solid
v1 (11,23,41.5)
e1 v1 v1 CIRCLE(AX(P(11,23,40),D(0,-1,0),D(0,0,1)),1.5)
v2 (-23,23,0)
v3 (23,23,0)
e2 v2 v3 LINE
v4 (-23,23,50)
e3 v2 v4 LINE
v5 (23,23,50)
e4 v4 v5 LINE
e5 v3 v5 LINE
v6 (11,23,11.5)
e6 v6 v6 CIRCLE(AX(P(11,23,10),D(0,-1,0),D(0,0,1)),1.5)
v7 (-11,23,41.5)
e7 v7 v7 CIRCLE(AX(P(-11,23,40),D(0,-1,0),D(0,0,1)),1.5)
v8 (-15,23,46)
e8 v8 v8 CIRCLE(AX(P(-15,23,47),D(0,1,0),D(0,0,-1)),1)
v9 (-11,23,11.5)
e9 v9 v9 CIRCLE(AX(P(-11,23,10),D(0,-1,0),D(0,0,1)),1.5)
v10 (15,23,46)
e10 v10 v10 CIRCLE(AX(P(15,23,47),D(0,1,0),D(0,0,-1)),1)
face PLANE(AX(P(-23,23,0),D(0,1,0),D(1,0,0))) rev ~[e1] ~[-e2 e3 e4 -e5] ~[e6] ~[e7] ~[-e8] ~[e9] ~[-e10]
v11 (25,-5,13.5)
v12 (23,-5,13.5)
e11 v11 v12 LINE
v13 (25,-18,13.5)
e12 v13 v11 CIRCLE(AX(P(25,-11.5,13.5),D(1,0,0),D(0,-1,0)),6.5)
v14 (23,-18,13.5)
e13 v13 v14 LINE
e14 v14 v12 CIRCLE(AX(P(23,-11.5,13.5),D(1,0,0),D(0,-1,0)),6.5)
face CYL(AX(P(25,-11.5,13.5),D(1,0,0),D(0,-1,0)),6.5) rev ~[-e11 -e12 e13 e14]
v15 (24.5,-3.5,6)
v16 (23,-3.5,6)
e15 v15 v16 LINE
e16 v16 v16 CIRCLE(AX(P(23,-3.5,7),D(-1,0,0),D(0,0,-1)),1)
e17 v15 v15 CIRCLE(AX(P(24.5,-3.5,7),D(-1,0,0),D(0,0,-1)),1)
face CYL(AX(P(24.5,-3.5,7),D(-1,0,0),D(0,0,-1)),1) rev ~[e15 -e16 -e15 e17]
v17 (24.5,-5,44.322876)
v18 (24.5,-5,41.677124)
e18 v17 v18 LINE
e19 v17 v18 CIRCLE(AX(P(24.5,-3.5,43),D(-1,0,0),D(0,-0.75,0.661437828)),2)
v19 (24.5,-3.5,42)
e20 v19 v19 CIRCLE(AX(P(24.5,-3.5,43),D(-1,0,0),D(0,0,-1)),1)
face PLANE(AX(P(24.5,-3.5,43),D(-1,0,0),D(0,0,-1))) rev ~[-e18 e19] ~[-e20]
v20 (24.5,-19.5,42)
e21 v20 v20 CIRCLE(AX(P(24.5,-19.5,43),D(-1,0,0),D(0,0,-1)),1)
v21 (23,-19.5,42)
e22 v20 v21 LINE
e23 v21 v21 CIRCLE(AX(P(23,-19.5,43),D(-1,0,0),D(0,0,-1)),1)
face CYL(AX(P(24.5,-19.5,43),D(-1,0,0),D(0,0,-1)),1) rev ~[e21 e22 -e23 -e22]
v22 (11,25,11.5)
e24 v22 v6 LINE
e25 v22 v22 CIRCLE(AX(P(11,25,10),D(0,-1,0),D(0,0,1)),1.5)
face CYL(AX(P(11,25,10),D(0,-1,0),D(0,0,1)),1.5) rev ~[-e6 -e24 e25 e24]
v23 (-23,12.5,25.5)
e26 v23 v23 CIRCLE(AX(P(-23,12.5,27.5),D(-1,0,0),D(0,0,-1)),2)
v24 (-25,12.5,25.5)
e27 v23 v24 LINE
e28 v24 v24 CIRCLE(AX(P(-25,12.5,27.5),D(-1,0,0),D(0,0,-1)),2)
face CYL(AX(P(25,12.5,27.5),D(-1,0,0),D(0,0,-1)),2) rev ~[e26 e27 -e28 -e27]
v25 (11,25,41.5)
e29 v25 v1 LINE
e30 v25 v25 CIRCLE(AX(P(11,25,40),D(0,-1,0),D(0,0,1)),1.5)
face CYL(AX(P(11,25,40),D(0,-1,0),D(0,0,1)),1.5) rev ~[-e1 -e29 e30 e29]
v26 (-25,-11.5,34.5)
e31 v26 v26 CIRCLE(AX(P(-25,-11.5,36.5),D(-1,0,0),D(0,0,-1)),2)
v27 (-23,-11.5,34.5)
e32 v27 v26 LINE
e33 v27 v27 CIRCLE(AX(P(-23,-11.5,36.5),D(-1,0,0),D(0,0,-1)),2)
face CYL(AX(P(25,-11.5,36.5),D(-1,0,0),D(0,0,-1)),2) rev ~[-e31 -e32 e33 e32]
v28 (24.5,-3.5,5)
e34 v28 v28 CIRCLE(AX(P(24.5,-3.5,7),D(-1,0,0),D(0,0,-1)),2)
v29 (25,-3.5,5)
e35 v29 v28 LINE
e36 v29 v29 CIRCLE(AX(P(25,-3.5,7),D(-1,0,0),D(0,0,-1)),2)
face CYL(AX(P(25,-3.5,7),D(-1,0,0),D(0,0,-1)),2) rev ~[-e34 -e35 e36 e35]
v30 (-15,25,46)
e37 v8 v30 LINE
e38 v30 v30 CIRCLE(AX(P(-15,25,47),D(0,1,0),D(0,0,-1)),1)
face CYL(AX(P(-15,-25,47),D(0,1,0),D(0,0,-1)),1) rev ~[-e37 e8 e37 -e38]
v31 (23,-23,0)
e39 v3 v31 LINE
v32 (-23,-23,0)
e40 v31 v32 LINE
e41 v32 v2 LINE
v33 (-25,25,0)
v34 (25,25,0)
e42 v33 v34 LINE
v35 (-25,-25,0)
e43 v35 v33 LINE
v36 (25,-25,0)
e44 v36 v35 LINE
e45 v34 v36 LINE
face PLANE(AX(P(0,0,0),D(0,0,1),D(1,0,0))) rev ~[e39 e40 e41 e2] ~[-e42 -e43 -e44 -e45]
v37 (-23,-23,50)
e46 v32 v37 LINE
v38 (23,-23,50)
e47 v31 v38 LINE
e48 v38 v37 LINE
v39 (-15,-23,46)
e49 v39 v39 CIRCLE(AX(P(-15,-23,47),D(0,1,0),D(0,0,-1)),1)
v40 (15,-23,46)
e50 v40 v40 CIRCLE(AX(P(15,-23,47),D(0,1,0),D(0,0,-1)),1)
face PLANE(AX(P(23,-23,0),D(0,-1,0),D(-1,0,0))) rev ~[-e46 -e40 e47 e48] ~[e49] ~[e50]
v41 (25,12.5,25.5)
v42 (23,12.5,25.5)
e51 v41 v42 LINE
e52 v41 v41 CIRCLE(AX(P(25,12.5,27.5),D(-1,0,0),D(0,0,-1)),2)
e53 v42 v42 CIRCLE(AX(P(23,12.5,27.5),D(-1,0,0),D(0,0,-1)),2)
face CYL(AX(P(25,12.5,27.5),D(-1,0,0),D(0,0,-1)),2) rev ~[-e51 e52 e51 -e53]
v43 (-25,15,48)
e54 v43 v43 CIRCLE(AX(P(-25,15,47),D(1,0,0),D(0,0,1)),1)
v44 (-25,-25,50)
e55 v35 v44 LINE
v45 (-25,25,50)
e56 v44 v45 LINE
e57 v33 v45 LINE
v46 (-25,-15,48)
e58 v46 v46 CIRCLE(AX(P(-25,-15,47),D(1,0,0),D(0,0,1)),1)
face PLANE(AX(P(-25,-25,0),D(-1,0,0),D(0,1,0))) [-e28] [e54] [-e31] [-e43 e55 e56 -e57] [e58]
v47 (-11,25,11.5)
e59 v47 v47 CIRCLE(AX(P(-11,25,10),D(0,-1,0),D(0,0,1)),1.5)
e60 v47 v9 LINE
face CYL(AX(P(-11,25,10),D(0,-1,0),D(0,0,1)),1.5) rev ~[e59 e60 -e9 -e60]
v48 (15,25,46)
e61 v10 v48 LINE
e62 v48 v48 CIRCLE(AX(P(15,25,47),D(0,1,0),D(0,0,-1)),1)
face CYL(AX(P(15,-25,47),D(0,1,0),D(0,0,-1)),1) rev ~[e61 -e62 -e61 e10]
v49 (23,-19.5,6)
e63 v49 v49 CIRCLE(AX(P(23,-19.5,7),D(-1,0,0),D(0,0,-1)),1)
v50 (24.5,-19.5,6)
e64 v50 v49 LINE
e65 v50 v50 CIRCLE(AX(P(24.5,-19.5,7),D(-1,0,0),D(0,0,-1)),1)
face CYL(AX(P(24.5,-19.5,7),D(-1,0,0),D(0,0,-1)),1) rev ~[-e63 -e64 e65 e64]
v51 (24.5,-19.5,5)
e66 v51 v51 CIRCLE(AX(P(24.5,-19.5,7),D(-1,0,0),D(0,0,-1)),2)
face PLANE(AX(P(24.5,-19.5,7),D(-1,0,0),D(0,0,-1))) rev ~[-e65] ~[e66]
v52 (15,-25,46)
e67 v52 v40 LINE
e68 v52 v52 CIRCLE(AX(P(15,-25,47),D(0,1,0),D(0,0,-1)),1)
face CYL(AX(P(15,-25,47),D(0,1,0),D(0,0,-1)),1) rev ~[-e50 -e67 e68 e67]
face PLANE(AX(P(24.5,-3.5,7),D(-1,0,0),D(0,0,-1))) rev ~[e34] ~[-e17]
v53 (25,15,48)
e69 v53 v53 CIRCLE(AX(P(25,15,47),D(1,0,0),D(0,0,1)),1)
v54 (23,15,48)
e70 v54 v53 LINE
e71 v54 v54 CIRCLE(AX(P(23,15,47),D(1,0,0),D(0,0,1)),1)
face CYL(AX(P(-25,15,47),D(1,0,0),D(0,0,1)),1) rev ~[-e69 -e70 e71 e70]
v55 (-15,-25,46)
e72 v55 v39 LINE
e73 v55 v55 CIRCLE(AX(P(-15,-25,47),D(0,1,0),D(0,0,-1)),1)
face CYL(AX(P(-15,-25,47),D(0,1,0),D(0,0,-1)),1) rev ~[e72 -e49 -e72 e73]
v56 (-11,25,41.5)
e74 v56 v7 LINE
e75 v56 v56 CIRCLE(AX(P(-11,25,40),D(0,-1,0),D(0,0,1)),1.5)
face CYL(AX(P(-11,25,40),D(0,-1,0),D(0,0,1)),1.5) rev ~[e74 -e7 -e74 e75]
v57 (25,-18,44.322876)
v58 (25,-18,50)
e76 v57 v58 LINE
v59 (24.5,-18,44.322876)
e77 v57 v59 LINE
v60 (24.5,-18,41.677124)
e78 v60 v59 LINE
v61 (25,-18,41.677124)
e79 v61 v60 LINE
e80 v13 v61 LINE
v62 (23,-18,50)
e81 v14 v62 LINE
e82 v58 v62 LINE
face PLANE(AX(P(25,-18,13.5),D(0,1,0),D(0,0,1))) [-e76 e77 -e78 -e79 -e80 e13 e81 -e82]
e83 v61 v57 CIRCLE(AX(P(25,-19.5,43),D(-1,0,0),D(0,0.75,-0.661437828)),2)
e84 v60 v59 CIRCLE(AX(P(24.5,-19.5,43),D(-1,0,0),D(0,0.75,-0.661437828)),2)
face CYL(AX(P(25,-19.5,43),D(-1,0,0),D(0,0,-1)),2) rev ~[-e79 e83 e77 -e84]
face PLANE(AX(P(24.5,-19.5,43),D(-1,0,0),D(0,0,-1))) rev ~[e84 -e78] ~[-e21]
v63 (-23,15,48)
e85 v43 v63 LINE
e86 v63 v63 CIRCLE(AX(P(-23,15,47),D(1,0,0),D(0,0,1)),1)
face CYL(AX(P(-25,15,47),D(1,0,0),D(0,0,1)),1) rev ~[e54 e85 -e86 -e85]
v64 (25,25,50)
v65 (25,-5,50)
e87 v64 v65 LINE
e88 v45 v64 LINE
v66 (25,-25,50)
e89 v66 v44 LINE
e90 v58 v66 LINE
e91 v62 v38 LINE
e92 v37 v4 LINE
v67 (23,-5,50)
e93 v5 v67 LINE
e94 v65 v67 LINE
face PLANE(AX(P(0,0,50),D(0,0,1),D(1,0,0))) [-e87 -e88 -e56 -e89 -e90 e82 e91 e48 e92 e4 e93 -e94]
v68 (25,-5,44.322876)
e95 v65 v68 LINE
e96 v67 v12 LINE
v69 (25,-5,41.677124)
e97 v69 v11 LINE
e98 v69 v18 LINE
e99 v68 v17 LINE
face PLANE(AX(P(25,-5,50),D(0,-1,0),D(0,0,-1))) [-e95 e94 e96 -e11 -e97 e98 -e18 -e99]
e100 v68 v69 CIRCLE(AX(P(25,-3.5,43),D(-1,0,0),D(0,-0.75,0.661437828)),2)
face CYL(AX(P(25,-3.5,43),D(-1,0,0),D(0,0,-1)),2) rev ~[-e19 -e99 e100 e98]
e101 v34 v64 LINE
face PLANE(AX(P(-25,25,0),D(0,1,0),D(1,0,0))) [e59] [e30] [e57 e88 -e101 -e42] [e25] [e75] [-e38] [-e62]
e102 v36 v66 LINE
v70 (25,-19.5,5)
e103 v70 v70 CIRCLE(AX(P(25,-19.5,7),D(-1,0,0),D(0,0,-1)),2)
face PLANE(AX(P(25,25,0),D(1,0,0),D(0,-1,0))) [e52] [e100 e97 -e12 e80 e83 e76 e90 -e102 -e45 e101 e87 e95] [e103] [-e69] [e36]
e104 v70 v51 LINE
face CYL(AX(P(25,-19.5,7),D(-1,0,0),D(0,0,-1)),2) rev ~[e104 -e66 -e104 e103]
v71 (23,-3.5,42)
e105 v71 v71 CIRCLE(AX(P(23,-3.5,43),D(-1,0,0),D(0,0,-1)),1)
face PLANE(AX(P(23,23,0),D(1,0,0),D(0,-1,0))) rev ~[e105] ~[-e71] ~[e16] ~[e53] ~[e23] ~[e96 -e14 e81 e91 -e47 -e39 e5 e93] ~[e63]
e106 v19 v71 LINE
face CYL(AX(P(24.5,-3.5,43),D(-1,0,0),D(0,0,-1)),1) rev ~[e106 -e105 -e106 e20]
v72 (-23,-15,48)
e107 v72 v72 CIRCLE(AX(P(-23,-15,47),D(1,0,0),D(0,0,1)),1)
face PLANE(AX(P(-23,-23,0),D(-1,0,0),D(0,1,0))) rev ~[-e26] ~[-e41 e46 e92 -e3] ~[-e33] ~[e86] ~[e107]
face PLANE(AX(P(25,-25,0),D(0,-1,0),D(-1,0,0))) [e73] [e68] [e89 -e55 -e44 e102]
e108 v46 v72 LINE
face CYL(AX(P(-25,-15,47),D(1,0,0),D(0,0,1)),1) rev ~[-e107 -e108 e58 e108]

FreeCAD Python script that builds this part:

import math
import FreeCAD as App
import Part
import Sketcher


def add_polygon(sketch, points):
    """Adds a closed chain of lines whose ends are joined by coincident constraints."""
    first, n = sketch.GeometryCount, len(points)
    for a, b in zip(points, points[1:] + points[:1]):
        sketch.addGeometry(Part.LineSegment(App.Vector(*a, 0), App.Vector(*b, 0)), False)
    for i in range(n):
        sketch.addConstraint(Sketcher.Constraint("Coincident", first + i, 2, first + (i + 1) % n, 1))

doc = App.newDocument("Part")
body = doc.addObject("PartDesign::Body", "Body")

# Sketch on XY plane
sketch1 = body.newObject("Sketcher::SketchObject", "Sketch")
sketch1.AttachmentSupport = (doc.getObject("XY_Plane"), [""])
sketch1.MapMode = "FlatFace"
add_polygon(sketch1, [(25, 25), (-25, 25), (-25, -25), (25, -25)])  # lines 0-3
add_polygon(sketch1, [(-23, -23), (-23, 23), (23, 23), (23, -23)])  # lines 4-7
sketch1.addConstraint([
    Sketcher.Constraint("Horizontal", 0),
    Sketcher.Constraint("Vertical", 1),
    Sketcher.Constraint("Horizontal", 2),
    Sketcher.Constraint("Vertical", 3),
    Sketcher.Constraint("Vertical", 4),
    Sketcher.Constraint("Horizontal", 5),
    Sketcher.Constraint("Vertical", 6),
    Sketcher.Constraint("Horizontal", 7),
    Sketcher.Constraint("Symmetric", 0, 2, 2, 2, -1, 1),
    Sketcher.Constraint("Symmetric", 4, 2, 6, 2, -1, 1),
    Sketcher.Constraint("Equal", 2, 1),
    Sketcher.Constraint("Equal", 7, 4),
    Sketcher.Constraint("DistanceX", 0, 2, 0, 1, 50.0),
    Sketcher.Constraint("DistanceX", 5, 1, 5, 2, 46.0),
])
pad1 = body.newObject("PartDesign::Pad", "Pad")
pad1.Profile = sketch1
pad1.Length = 50

# Sketch on YZ plane
sketch2 = body.newObject("Sketcher::SketchObject", "Sketch001")
sketch2.AttachmentSupport = (doc.getObject("YZ_Plane"), [""])
sketch2.MapMode = "FlatFace"
sketch2.AttachmentOffset = App.Placement(App.Vector(0, 0, 25), App.Rotation())
sketch2.addGeometry([
    Part.LineSegment(App.Vector(-5, 14, 0), App.Vector(-5, 50, 0)),
    Part.LineSegment(App.Vector(-5, 50, 0), App.Vector(-18, 50, 0)),
    Part.LineSegment(App.Vector(-18, 50, 0), App.Vector(-18, 14, 0)),
    Part.ArcOfCircle(Part.Circle(App.Vector(-12, 14, 0), App.Vector(0, 0, 1), 6), math.radians(180), math.radians(360)),
], False)
sketch2.addConstraint([
    Sketcher.Constraint("Coincident", 0, 2, 1, 1),
    Sketcher.Constraint("Coincident", 1, 2, 2, 1),
    Sketcher.Constraint("Tangent", 2, 2, 3, 1),
    Sketcher.Constraint("Tangent", 3, 2, 0, 1),
    Sketcher.Constraint("Vertical", 0),
    Sketcher.Constraint("Horizontal", 1),
    Sketcher.Constraint("Vertical", 2),
    Sketcher.Constraint("Radius", 3, 6.5),
    Sketcher.Constraint("DistanceY", 0, 1, 0, 2, 36.5),
    Sketcher.Constraint("DistanceX", 0, 2, -1, 1, 5.0),
    Sketcher.Constraint("DistanceY", -1, 1, 0, 2, 50.0),
])
pocket1 = body.newObject("PartDesign::Pocket", "Pocket")
pocket1.Profile = sketch2
pocket1.Length = 30.5

# Sketch on YZ plane
sketch3 = body.newObject("Sketcher::SketchObject", "Sketch002")
sketch3.AttachmentSupport = (doc.getObject("YZ_Plane"), [""])
sketch3.MapMode = "FlatFace"
sketch3.AttachmentOffset = App.Placement(App.Vector(0, 0, 25), App.Rotation())
sketch3.addGeometry([
    Part.Circle(App.Vector(-19.5, 43, 0), App.Vector(0, 0, 1), 1),
    Part.Circle(App.Vector(-3.5, 7, 0), App.Vector(0, 0, 1), 1),
    Part.Circle(App.Vector(-19.5, 7, 0), App.Vector(0, 0, 1), 1),
    Part.Circle(App.Vector(-3.5, 43, 0), App.Vector(0, 0, 1), 1),
], False)
sketch3.addConstraint([
    Sketcher.Constraint("Equal", 0, 1),
    Sketcher.Constraint("Equal", 1, 2),
    Sketcher.Constraint("Equal", 2, 3),
    Sketcher.Constraint("Horizontal", 1, 3, 2, 3),
    Sketcher.Constraint("Horizontal", 0, 3, 3, 3),
    Sketcher.Constraint("Vertical", 0, 3, 2, 3),
    Sketcher.Constraint("Vertical", 1, 3, 3, 3),
    Sketcher.Constraint("Diameter", 0, 2.0),
    Sketcher.Constraint("DistanceY", -1, 1, 0, 3, 43.0),
    Sketcher.Constraint("DistanceY", -1, 1, 1, 3, 7.0),
    Sketcher.Constraint("DistanceX", 0, 3, 1, 3, 16.0),
    Sketcher.Constraint("DistanceX", 0, 3, -1, 1, 19.5),
])
doc.recompute()
hole = body.newObject("PartDesign::Hole", "Hole")
hole.Profile = sketch3
hole.ThreadType = "None"
hole.Diameter = 2
hole.DepthType = "Dimension"
hole.Depth = 2
hole.DrillPoint = "Angled"
hole.DrillPointAngle = 118
hole.HoleCutType = "Counterbore"
hole.HoleCutDiameter = 4
hole.HoleCutDepth = 0.5

# Sketch on YZ plane
sketch4 = body.newObject("Sketcher::SketchObject", "Sketch003")
sketch4.AttachmentSupport = (doc.getObject("YZ_Plane"), [""])
sketch4.MapMode = "FlatFace"
sketch4.AttachmentOffset = App.Placement(App.Vector(0, 0, 25), App.Rotation())
sketch4.addGeometry([
    Part.Circle(App.Vector(-11.5, 36.5, 0), App.Vector(0, 0, 1), 2),
    Part.Circle(App.Vector(12.5, 27.5, 0), App.Vector(0, 0, 1), 2),
], False)
sketch4.addConstraint([
    Sketcher.Constraint("Equal", 0, 1),
    Sketcher.Constraint("Diameter", 0, 4.0),
    Sketcher.Constraint("DistanceX", 0, 3, 1, 3, 24.0),
    Sketcher.Constraint("DistanceY", 1, 3, 0, 3, 9.0),
    Sketcher.Constraint("DistanceX", 0, 3, -1, 1, 11.5),
    Sketcher.Constraint("DistanceY", -1, 1, 0, 3, 36.5),
])
doc.recompute()
hole2 = body.newObject("PartDesign::Hole", "Hole001")
hole2.Profile = sketch4
hole2.ThreadType = "None"
hole2.Diameter = 4
hole2.DepthType = "ThroughAll"

# Sketch on XZ plane
sketch5 = body.newObject("Sketcher::SketchObject", "Sketch004")
sketch5.AttachmentSupport = (doc.getObject("XZ_Plane"), [""])
sketch5.MapMode = "FlatFace"
sketch5.AttachmentOffset = App.Placement(App.Vector(0, 0, -25), App.Rotation())
sketch5.addGeometry([
    Part.Circle(App.Vector(11, 40, 0), App.Vector(0, 0, 1), 1.5),
    Part.Circle(App.Vector(-11, 40, 0), App.Vector(0, 0, 1), 1.5),
    Part.Circle(App.Vector(11, 10, 0), App.Vector(0, 0, 1), 1.5),
    Part.Circle(App.Vector(-11, 10, 0), App.Vector(0, 0, 1), 1.5),
], False)
sketch5.addConstraint([
    Sketcher.Constraint("Equal", 0, 1),
    Sketcher.Constraint("Equal", 1, 2),
    Sketcher.Constraint("Equal", 2, 3),
    Sketcher.Constraint("Symmetric", 0, 3, 1, 3, -2),
    Sketcher.Constraint("Symmetric", 2, 3, 3, 3, -2),
    Sketcher.Constraint("Vertical", 0, 3, 2, 3),
    Sketcher.Constraint("Diameter", 0, 3.0),
    Sketcher.Constraint("DistanceX", -1, 1, 0, 3, 11.0),
    Sketcher.Constraint("DistanceY", -1, 1, 0, 3, 40.0),
    Sketcher.Constraint("DistanceY", -1, 1, 2, 3, 10.0),
])
doc.recompute()
hole3 = body.newObject("PartDesign::Hole", "Hole002")
hole3.Profile = sketch5
hole3.ThreadType = "None"
hole3.Diameter = 3
hole3.DepthType = "Dimension"
hole3.Depth = 2
hole3.DrillPoint = "Angled"
hole3.DrillPointAngle = 118
hole3.Reversed = True

# Sketch on XZ plane
sketch6 = body.newObject("Sketcher::SketchObject", "Sketch005")
sketch6.AttachmentSupport = (doc.getObject("XZ_Plane"), [""])
sketch6.MapMode = "FlatFace"
sketch6.AttachmentOffset = App.Placement(App.Vector(0, 0, 25), App.Rotation())
sketch6.addGeometry([
    Part.Circle(App.Vector(15, 47, 0), App.Vector(0, 0, 1), 1),
    Part.Circle(App.Vector(-15, 47, 0), App.Vector(0, 0, 1), 1),
], False)
sketch6.addConstraint([
    Sketcher.Constraint("Equal", 0, 1),
    Sketcher.Constraint("Symmetric", 0, 3, 1, 3, -2),
    Sketcher.Constraint("Diameter", 0, 2.0),
    Sketcher.Constraint("DistanceX", -1, 1, 0, 3, 15.0),
    Sketcher.Constraint("DistanceY", -1, 1, 0, 3, 47.0),
])
doc.recompute()
hole4 = body.newObject("PartDesign::Hole", "Hole003")
hole4.Profile = sketch6
hole4.ThreadType = "None"
hole4.Diameter = 2
hole4.DepthType = "ThroughAll"

# Sketch on YZ plane
sketch7 = body.newObject("Sketcher::SketchObject", "Sketch006")
sketch7.AttachmentSupport = (doc.getObject("YZ_Plane"), [""])
sketch7.MapMode = "FlatFace"
sketch7.AttachmentOffset = App.Placement(App.Vector(0, 0, -25), App.Rotation())
sketch7.addGeometry([
    Part.Circle(App.Vector(15, 47, 0), App.Vector(0, 0, 1), 1),
    Part.Circle(App.Vector(-15, 47, 0), App.Vector(0, 0, 1), 1),
], False)
sketch7.addConstraint([
    Sketcher.Constraint("Equal", 0, 1),
    Sketcher.Constraint("Symmetric", 0, 3, 1, 3, -2),
    Sketcher.Constraint("Diameter", 0, 2.0),
    Sketcher.Constraint("DistanceX", -1, 1, 0, 3, 15.0),
    Sketcher.Constraint("DistanceY", -1, 1, 0, 3, 47.0),
])
doc.recompute()
hole5 = body.newObject("PartDesign::Hole", "Hole004")
hole5.Profile = sketch7
hole5.ThreadType = "None"
hole5.Diameter = 2
hole5.DepthType = "ThroughAll"
hole5.Reversed = True

doc.recompute()
